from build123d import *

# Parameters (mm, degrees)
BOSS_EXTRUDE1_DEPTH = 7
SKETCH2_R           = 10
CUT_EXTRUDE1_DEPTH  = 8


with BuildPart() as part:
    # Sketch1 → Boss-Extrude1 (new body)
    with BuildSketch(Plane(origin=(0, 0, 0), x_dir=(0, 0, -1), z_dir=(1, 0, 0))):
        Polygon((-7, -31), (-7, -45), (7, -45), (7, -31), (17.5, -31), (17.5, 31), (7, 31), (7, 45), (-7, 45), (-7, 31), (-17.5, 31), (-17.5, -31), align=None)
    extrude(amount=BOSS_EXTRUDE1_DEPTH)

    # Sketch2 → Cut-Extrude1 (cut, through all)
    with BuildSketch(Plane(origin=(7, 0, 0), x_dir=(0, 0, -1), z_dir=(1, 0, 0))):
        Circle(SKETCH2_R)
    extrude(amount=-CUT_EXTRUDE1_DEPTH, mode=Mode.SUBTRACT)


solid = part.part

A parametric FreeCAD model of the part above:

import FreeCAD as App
import Part
import Sketcher
from FreeCAD import Vector

doc = App.newDocument("Part")
body = doc.addObject("PartDesign::Body", "Body")

sketch1 = body.newObject("Sketcher::SketchObject", "Sketch")
sketch1.AttachmentSupport = (doc.getObject("YZ_Plane"), [""])
sketch1.MapMode = "FlatFace"
sketch1.addGeometry([
    Part.LineSegment(Vector(-31, 7, 0), Vector(-45, 7, 0)),
    Part.LineSegment(Vector(-45, 7, 0), Vector(-45, -7, 0)),
    Part.LineSegment(Vector(-45, -7, 0), Vector(-31, -7, 0)),
    Part.LineSegment(Vector(-31, -7, 0), Vector(-31, -17.5, 0)),
    Part.LineSegment(Vector(-31, -17.5, 0), Vector(31, -17.5, 0)),
    Part.LineSegment(Vector(31, -17.5, 0), Vector(31, -7, 0)),
    Part.LineSegment(Vector(31, -7, 0), Vector(45, -7, 0)),
    Part.LineSegment(Vector(45, -7, 0), Vector(45, 7, 0)),
    Part.LineSegment(Vector(45, 7, 0), Vector(31, 7, 0)),
    Part.LineSegment(Vector(31, 7, 0), Vector(31, 17.5, 0)),
    Part.LineSegment(Vector(31, 17.5, 0), Vector(-31, 17.5, 0)),
    Part.LineSegment(Vector(-31, 17.5, 0), Vector(-31, 7, 0)),
], False)
sketch1.addConstraint([
    Sketcher.Constraint("Coincident", 0, 2, 1, 1),
    Sketcher.Constraint("Coincident", 1, 2, 2, 1),
    Sketcher.Constraint("Coincident", 2, 2, 3, 1),
    Sketcher.Constraint("Coincident", 3, 2, 4, 1),
    Sketcher.Constraint("Coincident", 4, 2, 5, 1),
    Sketcher.Constraint("Coincident", 5, 2, 6, 1),
    Sketcher.Constraint("Coincident", 6, 2, 7, 1),
    Sketcher.Constraint("Coincident", 7, 2, 8, 1),
    Sketcher.Constraint("Coincident", 8, 2, 9, 1),
    Sketcher.Constraint("Coincident", 9, 2, 10, 1),
    Sketcher.Constraint("Coincident", 10, 2, 11, 1),
    Sketcher.Constraint("Coincident", 11, 2, 0, 1),
    Sketcher.Constraint("Horizontal", 0),
    Sketcher.Constraint("Vertical", 1),
    Sketcher.Constraint("Horizontal", 2),
    Sketcher.Constraint("Vertical", 3),
    Sketcher.Constraint("Horizontal", 4),
    Sketcher.Constraint("Vertical", 5),
    Sketcher.Constraint("Horizontal", 6),
    Sketcher.Constraint("Vertical", 7),
    Sketcher.Constraint("Horizontal", 8),
    Sketcher.Constraint("Vertical", 9),
    Sketcher.Constraint("Horizontal", 10),
    Sketcher.Constraint("Vertical", 11),
    Sketcher.Constraint("Symmetric", 0, 2, 6, 2, -1, 1),
    Sketcher.Constraint("Symmetric", 2, 2, 8, 2, -1, 1),
    Sketcher.Constraint("Symmetric", 4, 2, 10, 2, -1, 1),
    Sketcher.Constraint("Symmetric", 2, 2, 5, 2, -2),
    Sketcher.Constraint("Equal", 8, 1),
    Sketcher.Constraint("DistanceX", 0, 2, 0, 1, 14.0),
    Sketcher.Constraint("DistanceX", 4, 1, 4, 2, 62.0),
    Sketcher.Constraint("DistanceY", 3, 2, 3, 1, 10.5),
])
pad1 = body.newObject("PartDesign::Pad", "Pad")
pad1.Profile = sketch1
pad1.Length = 7

sketch2 = body.newObject("Sketcher::SketchObject", "Sketch001")
sketch2.AttachmentSupport = (doc.getObject("YZ_Plane"), [""])
sketch2.MapMode = "FlatFace"
sketch2.AttachmentOffset = App.Placement(Vector(0, 0, 7), App.Rotation())
sketch2.addGeometry(Part.Circle(Vector(0, 0, 0), Vector(0, 0, 1), 10), False)
sketch2.addConstraint([
    Sketcher.Constraint("Coincident", 0, 3, -1, 1),
    Sketcher.Constraint("Diameter", 0, 20.0),
])
pocket1 = body.newObject("PartDesign::Pocket", "Pocket")
pocket1.Profile = sketch2
pocket1.Type = "ThroughAll"

doc.recompute()
